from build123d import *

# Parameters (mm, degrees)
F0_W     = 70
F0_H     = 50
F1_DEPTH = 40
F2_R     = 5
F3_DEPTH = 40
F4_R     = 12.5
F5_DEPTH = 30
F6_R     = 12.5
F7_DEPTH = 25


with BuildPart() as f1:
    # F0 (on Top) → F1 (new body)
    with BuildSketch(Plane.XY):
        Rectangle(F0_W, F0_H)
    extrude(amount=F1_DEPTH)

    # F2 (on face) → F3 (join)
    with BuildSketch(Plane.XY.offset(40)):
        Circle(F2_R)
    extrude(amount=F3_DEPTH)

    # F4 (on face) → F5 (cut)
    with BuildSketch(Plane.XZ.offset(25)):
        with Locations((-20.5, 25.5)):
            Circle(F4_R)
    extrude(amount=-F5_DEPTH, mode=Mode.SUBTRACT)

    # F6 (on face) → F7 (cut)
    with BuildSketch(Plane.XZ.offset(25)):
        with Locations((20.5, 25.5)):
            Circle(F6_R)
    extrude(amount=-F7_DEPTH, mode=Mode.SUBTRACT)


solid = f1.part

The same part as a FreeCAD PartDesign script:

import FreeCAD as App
import Part
import Sketcher

V = App.Vector

doc = App.newDocument("Part")
body = doc.addObject("PartDesign::Body", "Body")

# Sketch on XY plane
sketch1 = doc.addObject("Sketcher::SketchObject", "Sketch")
body.addObject(sketch1)
sketch1.AttachmentSupport = (doc.XY_Plane, [""])
sketch1.MapMode = "FlatFace"
sketch1.addGeometry([
    Part.LineSegment(V(-35, 25, 0), V(-35, -25, 0)),
    Part.LineSegment(V(-35, -25, 0), V(35, -25, 0)),
    Part.LineSegment(V(35, -25, 0), V(35, 25, 0)),
    Part.LineSegment(V(35, 25, 0), V(-35, 25, 0)),
], False)
sketch1.addConstraint([
    Sketcher.Constraint("Coincident", 0, 2, 1, 1),
    Sketcher.Constraint("Coincident", 1, 2, 2, 1),
    Sketcher.Constraint("Coincident", 2, 2, 3, 1),
    Sketcher.Constraint("Coincident", 3, 2, 0, 1),
    Sketcher.Constraint("Vertical", 0),
    Sketcher.Constraint("Horizontal", 1),
    Sketcher.Constraint("Vertical", 2),
    Sketcher.Constraint("Horizontal", 3),
    Sketcher.Constraint("Symmetric", 0, 2, 2, 2, -1, 1),
    Sketcher.Constraint("DistanceX", 1, 1, 1, 2, 70.0),
    Sketcher.Constraint("DistanceY", 0, 2, 0, 1, 50.0),
])
pad1 = doc.addObject("PartDesign::Pad", "Pad")
body.addObject(pad1)
pad1.Profile = sketch1
pad1.Length = 40

# Sketch on XY plane
sketch2 = doc.addObject("Sketcher::SketchObject", "Sketch001")
body.addObject(sketch2)
sketch2.AttachmentSupport = (doc.XY_Plane, [""])
sketch2.MapMode = "FlatFace"
sketch2.AttachmentOffset = App.Placement(V(0, 0, 40), App.Rotation())
sketch2.addGeometry(Part.Circle(V(0, 0, 0), V(0, 0, 1), 5), False)
sketch2.addConstraint([
    Sketcher.Constraint("Coincident", 0, 3, -1, 1),
    Sketcher.Constraint("Diameter", 0, 10.0),
])
pad2 = doc.addObject("PartDesign::Pad", "Pad001")
body.addObject(pad2)
pad2.Profile = sketch2
pad2.Length = 40

# Sketch on XZ plane
sketch3 = doc.addObject("Sketcher::SketchObject", "Sketch002")
body.addObject(sketch3)
sketch3.AttachmentSupport = (doc.XZ_Plane, [""])
sketch3.MapMode = "FlatFace"
sketch3.AttachmentOffset = App.Placement(V(0, 0, 25), App.Rotation())
sketch3.addGeometry(Part.Circle(V(-20, 26, 0), V(0, 0, 1), 12), False)
sketch3.addConstraint([
    Sketcher.Constraint("Diameter", 0, 25.0),
    Sketcher.Constraint("DistanceX", 0, 3, -1, 1, 20.5),
    Sketcher.Constraint("DistanceY", -1, 1, 0, 3, 25.5),
])
pocket1 = doc.addObject("PartDesign::Pocket", "Pocket")
body.addObject(pocket1)
pocket1.Profile = sketch3
pocket1.Length = 30

# Sketch on XZ plane
sketch4 = doc.addObject("Sketcher::SketchObject", "Sketch003")
body.addObject(sketch4)
sketch4.AttachmentSupport = (doc.XZ_Plane, [""])
sketch4.MapMode = "FlatFace"
sketch4.AttachmentOffset = App.Placement(V(0, 0, 25), App.Rotation())
sketch4.addGeometry(Part.Circle(V(20, 26, 0), V(0, 0, 1), 12), False)
sketch4.addConstraint([
    Sketcher.Constraint("Diameter", 0, 25.0),
    Sketcher.Constraint("DistanceX", -1, 1, 0, 3, 20.5),
    Sketcher.Constraint("DistanceY", -1, 1, 0, 3, 25.5),
])
pocket2 = doc.addObject("PartDesign::Pocket", "Pocket001")
body.addObject(pocket2)
pocket2.Profile = sketch4
pocket2.Length = 25

doc.recompute()
